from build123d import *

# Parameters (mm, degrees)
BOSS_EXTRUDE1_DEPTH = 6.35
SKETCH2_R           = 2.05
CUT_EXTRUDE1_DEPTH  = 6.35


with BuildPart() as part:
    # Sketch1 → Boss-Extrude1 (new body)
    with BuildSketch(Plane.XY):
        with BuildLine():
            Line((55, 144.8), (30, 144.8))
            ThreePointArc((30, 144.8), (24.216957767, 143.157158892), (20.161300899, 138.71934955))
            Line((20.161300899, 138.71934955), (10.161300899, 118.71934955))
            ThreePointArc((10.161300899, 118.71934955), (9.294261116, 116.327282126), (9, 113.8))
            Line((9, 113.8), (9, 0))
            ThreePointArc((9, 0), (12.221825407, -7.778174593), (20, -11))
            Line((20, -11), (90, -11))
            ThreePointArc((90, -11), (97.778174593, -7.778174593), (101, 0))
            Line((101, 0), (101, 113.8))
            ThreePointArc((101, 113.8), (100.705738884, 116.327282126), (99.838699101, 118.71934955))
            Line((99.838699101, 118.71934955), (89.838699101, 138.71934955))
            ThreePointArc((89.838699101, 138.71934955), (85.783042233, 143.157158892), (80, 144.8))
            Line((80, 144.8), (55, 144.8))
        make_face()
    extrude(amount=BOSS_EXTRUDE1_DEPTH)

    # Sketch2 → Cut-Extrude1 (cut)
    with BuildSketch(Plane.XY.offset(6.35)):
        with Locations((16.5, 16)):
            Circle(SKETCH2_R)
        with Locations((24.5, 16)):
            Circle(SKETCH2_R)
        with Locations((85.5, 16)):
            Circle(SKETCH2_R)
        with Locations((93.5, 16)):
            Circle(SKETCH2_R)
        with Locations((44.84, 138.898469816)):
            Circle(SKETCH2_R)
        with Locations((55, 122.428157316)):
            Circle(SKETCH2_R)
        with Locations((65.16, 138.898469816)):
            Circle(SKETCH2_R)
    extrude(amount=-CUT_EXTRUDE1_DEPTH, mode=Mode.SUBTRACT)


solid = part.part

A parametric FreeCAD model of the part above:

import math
import FreeCAD as App
import Part
import Sketcher
from FreeCAD import Vector
Q = App.Units.Quantity

doc = App.newDocument("Part")
body = doc.addObject("PartDesign::Body", "Body")

# Sketch on XY plane
sketch1 = body.newObject("Sketcher::SketchObject", "Sketch")
sketch1.AttachmentSupport = (doc.getObject("XY_Plane"), [""])
sketch1.MapMode = "FlatFace"
sketch1.addGeometry([
    Part.ArcOfCircle(Part.Circle(Vector(30, 134, 0), Vector(0, 0, 1), 11), math.radians(90), math.radians(153)),  # 0
    Part.LineSegment(Vector(20, 139, 0), Vector(10, 119, 0)),  # 1
    Part.ArcOfCircle(Part.Circle(Vector(20, 114, 0), Vector(0, 0, 1), 11), math.radians(153), math.radians(180)),  # 2
    Part.LineSegment(Vector(9, 114, 0), Vector(9, 0, 0)),  # 3
    Part.ArcOfCircle(Part.Circle(Vector(20, 0, 0), Vector(0, 0, 1), 11), math.radians(180), math.radians(270)),  # 4
    Part.LineSegment(Vector(20, -11, 0), Vector(90, -11, 0)),  # 5
    Part.ArcOfCircle(Part.Circle(Vector(90, 0, 0), Vector(0, 0, 1), 11), math.radians(-90), math.radians(0)),  # 6
    Part.LineSegment(Vector(101, 0, 0), Vector(101, 114, 0)),  # 7
    Part.ArcOfCircle(Part.Circle(Vector(90, 114, 0), Vector(0, 0, 1), 11), math.radians(0), math.radians(27)),  # 8
    Part.LineSegment(Vector(100, 119, 0), Vector(90, 139, 0)),  # 9
    Part.ArcOfCircle(Part.Circle(Vector(80, 134, 0), Vector(0, 0, 1), 11), math.radians(27), math.radians(90)),  # 10
    Part.LineSegment(Vector(80, 145, 0), Vector(30, 145, 0)),  # 11
], False)
sketch1.addConstraint([
    Sketcher.Constraint("Tangent", 0, 2, 1, 1),
    Sketcher.Constraint("Tangent", 1, 2, 2, 1),
    Sketcher.Constraint("Tangent", 2, 2, 3, 1),
    Sketcher.Constraint("Tangent", 3, 2, 4, 1),
    Sketcher.Constraint("Tangent", 4, 2, 5, 1),
    Sketcher.Constraint("Tangent", 5, 2, 6, 1),
    Sketcher.Constraint("Tangent", 6, 2, 7, 1),
    Sketcher.Constraint("Tangent", 7, 2, 8, 1),
    Sketcher.Constraint("Tangent", 8, 2, 9, 1),
    Sketcher.Constraint("Tangent", 9, 2, 10, 1),
    Sketcher.Constraint("Tangent", 10, 2, 11, 1),
    Sketcher.Constraint("Tangent", 11, 2, 0, 1),
    Sketcher.Constraint("Vertical", 3),
    Sketcher.Constraint("Horizontal", 5),
    Sketcher.Constraint("Vertical", 7),
    Sketcher.Constraint("Horizontal", 11),
    Sketcher.Constraint("Equal", 0, 2),
    Sketcher.Constraint("Equal", 2, 4),
    Sketcher.Constraint("Equal", 4, 6),
    Sketcher.Constraint("Equal", 6, 8),
    Sketcher.Constraint("Equal", 8, 10),
    Sketcher.Constraint("PointOnObject", 4, 3, -1),
    Sketcher.Constraint("Horizontal", 2, 3, 8, 3),
    Sketcher.Constraint("Horizontal", 1, 2, 8, 2),
    Sketcher.Constraint("Radius", 0, Q("11 mm")),
    Sketcher.Constraint("DistanceX", 5, 1, 5, 2, Q("70 mm")),
    Sketcher.Constraint("DistanceX", 11, 2, 11, 1, Q("50 mm")),
    Sketcher.Constraint("DistanceY", 3, 2, 3, 1, Q("113.8 mm")),
    Sketcher.Constraint("DistanceX", -1, 1, 0, 3, Q("30 mm")),
    Sketcher.Constraint("DistanceY", 2, 3, 0, 3, Q("20 mm")),
])
pad1 = body.newObject("PartDesign::Pad", "Pad")
pad1.Profile = sketch1
pad1.Length = 6.35

# Sketch on XY plane
sketch2 = body.newObject("Sketcher::SketchObject", "Sketch001")
sketch2.AttachmentSupport = (doc.getObject("XY_Plane"), [""])
sketch2.MapMode = "FlatFace"
sketch2.AttachmentOffset = App.Placement(Vector(0, 0, 6.35), App.Rotation())
sketch2.addGeometry([
    Part.Circle(Vector(16.5, 16, 0), Vector(0, 0, 1), 2),  # 0
    Part.Circle(Vector(24.5, 16, 0), Vector(0, 0, 1), 2),  # 1
    Part.Circle(Vector(85.5, 16, 0), Vector(0, 0, 1), 2),  # 2
    Part.Circle(Vector(93.5, 16, 0), Vector(0, 0, 1), 2),  # 3
    Part.Circle(Vector(44.8, 138.9, 0), Vector(0, 0, 1), 2),  # 4
    Part.Circle(Vector(55, 122.4, 0), Vector(0, 0, 1), 2),  # 5
    Part.Circle(Vector(65.2, 138.9, 0), Vector(0, 0, 1), 2),  # 6
], False)
sketch2.addConstraint([
    Sketcher.Constraint("Equal", 0, 1),
    Sketcher.Constraint("Equal", 1, 2),
    Sketcher.Constraint("Equal", 2, 3),
    Sketcher.Constraint("Equal", 3, 4),
    Sketcher.Constraint("Equal", 4, 5),
    Sketcher.Constraint("Equal", 5, 6),
    Sketcher.Constraint("Horizontal", 0, 3, 1, 3),
    Sketcher.Constraint("Horizontal", 1, 3, 2, 3),
    Sketcher.Constraint("Horizontal", 2, 3, 3, 3),
    Sketcher.Constraint("Horizontal", 4, 3, 6, 3),
    Sketcher.Constraint("Diameter", 0, Q("4.1 mm")),
    Sketcher.Constraint("DistanceY", -1, 1, 0, 3, Q("16 mm")),
    Sketcher.Constraint("DistanceX", -1, 1, 5, 3, Q("55 mm")),
    Sketcher.Constraint("DistanceX", 0, 3, 1, 3, Q("8 mm")),
    Sketcher.Constraint("DistanceX", 1, 3, 2, 3, Q("61 mm")),
    Sketcher.Constraint("DistanceX", 2, 3, 3, 3, Q("8 mm")),
    Sketcher.Constraint("DistanceX", -1, 1, 0, 3, Q("16.5 mm")),
    Sketcher.Constraint("DistanceX", -1, 1, 4, 3, Q("44.84 mm")),
    Sketcher.Constraint("DistanceX", -1, 1, 6, 3, Q("65.16 mm")),
    Sketcher.Constraint("DistanceY", -1, 1, 4, 3, Q("138.89847 mm")),
    Sketcher.Constraint("DistanceY", -1, 1, 5, 3, Q("122.428157 mm")),
])
pocket1 = body.newObject("PartDesign::Pocket", "Pocket")
pocket1.Profile = sketch2
pocket1.Length = 6.35

doc.recompute()
